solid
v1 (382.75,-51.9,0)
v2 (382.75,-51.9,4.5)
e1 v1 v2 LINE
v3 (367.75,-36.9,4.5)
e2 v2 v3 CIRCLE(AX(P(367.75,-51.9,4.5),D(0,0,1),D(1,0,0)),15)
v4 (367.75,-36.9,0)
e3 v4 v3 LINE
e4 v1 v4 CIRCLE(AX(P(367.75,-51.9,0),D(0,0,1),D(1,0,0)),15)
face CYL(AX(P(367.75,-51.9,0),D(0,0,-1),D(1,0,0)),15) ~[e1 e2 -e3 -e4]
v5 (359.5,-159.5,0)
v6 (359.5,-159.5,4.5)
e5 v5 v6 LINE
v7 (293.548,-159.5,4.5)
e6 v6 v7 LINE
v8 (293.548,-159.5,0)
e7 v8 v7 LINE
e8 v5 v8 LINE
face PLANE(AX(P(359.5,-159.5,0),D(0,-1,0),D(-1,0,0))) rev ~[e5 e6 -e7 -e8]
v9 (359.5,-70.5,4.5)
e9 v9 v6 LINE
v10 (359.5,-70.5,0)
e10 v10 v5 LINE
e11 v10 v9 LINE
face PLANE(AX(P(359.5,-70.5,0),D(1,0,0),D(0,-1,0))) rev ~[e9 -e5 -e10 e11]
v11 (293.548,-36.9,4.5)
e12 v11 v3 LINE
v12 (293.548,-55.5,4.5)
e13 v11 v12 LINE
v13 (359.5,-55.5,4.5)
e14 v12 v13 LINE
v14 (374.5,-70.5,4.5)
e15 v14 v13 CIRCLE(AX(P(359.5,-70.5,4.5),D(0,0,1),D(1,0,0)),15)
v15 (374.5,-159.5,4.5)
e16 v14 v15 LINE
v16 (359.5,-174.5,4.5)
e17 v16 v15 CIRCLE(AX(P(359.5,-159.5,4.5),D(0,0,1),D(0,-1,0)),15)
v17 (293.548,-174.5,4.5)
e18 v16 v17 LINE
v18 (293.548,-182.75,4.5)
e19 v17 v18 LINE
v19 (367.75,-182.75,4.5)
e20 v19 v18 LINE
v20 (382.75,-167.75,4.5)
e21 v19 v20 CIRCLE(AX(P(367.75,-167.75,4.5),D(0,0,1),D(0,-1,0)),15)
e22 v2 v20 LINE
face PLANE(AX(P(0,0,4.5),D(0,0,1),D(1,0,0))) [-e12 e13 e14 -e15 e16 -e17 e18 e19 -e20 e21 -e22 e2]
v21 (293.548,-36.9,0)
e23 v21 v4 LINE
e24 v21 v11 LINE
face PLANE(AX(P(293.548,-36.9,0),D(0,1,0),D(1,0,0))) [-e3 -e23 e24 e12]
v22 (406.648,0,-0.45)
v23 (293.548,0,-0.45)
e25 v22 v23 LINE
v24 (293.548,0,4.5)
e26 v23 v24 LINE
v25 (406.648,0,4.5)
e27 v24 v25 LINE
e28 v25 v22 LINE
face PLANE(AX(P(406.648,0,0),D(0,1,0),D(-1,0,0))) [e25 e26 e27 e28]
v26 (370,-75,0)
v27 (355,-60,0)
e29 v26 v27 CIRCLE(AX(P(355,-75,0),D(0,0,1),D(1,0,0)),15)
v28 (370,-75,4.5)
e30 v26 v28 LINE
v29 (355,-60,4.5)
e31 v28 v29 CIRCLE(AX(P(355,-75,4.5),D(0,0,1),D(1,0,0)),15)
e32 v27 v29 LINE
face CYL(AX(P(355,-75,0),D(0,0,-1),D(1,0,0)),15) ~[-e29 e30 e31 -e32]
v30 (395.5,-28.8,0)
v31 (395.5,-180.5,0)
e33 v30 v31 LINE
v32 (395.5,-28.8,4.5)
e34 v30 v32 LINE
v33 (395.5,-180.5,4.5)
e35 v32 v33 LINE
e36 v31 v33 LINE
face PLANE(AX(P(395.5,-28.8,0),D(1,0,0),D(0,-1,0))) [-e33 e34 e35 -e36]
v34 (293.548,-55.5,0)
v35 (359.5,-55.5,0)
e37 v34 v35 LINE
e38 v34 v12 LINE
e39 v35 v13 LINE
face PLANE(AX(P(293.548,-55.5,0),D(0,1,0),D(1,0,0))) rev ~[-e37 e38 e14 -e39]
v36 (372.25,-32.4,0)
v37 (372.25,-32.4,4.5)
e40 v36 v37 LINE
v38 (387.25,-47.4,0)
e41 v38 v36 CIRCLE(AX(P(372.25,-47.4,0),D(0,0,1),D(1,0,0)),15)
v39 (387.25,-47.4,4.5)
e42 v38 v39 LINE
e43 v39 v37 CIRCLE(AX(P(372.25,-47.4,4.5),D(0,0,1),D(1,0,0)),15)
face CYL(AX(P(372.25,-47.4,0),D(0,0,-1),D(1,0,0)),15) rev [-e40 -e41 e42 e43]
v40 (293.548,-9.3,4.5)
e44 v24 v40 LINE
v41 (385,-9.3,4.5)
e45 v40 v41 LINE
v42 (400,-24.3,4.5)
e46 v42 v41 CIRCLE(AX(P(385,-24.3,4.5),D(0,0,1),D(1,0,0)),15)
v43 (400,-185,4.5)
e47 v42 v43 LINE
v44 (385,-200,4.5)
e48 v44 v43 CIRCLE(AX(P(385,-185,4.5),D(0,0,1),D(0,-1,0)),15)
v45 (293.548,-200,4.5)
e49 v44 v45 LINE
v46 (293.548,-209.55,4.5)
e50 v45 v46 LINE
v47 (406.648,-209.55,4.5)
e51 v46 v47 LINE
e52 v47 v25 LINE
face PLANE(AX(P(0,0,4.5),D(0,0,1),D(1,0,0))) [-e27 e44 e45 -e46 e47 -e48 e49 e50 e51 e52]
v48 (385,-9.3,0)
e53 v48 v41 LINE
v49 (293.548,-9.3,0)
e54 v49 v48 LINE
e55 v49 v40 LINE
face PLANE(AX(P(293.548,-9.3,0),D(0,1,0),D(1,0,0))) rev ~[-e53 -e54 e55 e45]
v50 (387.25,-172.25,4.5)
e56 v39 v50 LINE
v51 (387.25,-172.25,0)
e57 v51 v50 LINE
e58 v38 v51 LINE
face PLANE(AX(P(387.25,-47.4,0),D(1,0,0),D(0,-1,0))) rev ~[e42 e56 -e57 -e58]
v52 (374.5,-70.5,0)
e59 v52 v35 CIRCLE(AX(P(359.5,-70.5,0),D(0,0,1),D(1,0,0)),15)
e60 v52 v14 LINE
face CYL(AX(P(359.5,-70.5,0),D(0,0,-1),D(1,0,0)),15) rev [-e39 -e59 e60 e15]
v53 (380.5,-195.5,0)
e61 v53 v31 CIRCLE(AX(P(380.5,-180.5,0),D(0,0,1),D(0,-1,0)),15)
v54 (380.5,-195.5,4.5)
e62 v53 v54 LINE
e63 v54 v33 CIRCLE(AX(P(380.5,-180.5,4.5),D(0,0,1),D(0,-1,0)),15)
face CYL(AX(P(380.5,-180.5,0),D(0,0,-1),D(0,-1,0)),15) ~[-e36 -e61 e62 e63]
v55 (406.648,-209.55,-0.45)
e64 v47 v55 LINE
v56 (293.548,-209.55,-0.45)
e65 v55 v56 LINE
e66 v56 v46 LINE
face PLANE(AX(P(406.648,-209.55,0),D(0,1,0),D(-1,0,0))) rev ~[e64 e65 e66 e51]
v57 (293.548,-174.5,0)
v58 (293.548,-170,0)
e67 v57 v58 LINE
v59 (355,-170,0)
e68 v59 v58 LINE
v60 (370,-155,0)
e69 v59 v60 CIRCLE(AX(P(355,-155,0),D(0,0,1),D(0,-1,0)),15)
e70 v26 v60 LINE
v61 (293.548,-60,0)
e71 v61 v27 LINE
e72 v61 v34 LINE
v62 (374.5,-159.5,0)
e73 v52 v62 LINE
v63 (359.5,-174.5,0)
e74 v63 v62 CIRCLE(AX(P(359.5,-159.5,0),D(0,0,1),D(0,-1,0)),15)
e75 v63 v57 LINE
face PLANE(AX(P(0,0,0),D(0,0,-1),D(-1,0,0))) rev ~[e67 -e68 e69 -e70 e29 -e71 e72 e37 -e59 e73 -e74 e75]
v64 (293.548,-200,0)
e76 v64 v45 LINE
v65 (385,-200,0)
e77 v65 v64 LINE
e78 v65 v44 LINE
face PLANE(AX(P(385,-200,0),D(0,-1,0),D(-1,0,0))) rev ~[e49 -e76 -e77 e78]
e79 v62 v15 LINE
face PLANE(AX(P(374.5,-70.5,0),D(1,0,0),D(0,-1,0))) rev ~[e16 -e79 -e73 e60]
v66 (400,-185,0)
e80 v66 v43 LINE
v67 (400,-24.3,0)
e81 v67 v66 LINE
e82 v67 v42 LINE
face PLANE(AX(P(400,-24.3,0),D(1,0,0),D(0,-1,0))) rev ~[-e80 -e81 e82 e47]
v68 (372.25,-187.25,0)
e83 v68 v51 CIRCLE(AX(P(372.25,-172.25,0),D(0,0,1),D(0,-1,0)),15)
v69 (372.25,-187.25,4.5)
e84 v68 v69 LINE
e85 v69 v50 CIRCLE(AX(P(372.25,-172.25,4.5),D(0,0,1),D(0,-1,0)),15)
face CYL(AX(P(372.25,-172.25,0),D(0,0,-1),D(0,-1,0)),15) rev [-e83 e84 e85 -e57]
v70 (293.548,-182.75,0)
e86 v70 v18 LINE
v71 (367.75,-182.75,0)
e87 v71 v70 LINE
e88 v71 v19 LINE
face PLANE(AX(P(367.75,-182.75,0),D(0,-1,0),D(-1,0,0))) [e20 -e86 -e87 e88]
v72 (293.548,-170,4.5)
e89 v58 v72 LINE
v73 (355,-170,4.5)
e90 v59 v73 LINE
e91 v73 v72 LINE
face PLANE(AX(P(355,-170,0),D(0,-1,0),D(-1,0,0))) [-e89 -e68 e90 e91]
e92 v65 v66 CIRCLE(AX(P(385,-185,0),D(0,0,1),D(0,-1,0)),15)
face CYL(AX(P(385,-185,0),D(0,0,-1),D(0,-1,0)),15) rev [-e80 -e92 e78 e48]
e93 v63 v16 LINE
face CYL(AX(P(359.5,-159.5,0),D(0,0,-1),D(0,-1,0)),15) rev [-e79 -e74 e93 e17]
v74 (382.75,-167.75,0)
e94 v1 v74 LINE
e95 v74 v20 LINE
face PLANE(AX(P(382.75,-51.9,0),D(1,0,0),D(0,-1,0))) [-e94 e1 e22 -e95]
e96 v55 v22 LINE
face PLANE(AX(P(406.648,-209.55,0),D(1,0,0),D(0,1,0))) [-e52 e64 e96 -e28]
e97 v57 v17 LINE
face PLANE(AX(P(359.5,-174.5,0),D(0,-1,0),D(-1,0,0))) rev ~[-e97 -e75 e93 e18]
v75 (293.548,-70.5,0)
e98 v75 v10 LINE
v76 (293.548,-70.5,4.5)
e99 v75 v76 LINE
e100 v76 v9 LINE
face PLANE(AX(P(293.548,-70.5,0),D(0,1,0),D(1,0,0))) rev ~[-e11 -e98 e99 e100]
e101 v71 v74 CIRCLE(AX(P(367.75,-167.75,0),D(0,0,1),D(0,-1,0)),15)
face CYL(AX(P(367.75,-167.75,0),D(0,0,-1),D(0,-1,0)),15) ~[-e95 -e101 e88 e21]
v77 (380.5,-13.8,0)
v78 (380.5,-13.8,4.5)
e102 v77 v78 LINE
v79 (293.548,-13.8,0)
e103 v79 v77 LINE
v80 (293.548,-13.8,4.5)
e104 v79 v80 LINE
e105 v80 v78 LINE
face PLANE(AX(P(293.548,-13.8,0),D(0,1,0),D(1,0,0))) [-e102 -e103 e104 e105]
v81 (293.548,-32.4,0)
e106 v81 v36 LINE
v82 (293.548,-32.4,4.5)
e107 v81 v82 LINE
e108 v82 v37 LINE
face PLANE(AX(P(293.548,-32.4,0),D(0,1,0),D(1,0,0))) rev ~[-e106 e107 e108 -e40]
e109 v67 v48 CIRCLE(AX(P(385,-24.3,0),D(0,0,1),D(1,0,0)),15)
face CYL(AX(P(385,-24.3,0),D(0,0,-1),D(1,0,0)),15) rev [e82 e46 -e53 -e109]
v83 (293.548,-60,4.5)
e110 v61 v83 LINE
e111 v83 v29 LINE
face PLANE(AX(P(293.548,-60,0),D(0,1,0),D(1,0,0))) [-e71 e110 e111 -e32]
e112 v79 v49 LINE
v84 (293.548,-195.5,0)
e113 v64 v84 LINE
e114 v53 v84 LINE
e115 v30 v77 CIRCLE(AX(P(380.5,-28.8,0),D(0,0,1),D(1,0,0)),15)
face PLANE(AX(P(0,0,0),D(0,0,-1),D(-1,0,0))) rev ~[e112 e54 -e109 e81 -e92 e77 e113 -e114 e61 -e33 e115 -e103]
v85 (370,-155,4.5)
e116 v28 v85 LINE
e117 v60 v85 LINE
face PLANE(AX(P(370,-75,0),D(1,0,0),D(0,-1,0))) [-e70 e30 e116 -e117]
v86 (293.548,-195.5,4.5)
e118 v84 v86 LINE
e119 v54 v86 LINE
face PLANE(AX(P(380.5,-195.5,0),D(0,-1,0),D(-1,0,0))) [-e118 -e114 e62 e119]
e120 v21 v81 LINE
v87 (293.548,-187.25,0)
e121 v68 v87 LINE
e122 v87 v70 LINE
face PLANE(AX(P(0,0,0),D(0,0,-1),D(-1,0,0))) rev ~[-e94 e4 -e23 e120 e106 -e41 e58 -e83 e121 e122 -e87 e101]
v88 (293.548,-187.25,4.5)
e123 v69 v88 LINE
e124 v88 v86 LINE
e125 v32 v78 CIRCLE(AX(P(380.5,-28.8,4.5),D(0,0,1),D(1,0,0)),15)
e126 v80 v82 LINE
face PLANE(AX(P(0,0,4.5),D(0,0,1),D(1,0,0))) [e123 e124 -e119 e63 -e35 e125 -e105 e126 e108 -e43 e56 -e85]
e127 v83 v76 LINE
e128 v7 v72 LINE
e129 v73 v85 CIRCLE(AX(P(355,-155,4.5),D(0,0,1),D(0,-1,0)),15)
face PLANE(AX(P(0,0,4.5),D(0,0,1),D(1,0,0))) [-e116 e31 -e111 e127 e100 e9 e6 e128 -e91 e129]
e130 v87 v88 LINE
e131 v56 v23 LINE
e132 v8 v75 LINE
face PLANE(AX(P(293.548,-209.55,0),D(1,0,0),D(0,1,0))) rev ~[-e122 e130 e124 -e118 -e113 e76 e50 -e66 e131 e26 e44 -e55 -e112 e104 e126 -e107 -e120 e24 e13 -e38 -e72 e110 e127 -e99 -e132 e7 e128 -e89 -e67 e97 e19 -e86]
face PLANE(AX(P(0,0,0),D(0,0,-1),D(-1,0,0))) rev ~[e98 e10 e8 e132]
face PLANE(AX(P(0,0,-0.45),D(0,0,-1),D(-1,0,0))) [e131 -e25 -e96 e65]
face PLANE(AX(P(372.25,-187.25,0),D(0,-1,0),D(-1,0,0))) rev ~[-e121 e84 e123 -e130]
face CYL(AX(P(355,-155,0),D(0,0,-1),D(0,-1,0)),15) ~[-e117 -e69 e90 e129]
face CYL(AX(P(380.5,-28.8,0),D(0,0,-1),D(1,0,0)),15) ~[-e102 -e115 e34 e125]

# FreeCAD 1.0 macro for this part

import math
import FreeCAD as App
import Part
import Sketcher
from FreeCAD import Vector
Q = App.Units.Quantity


def add_polygon(sketch, points):
    """Adds a closed chain of lines whose ends are joined by coincident constraints."""
    first, n = sketch.GeometryCount, len(points)
    for a, b in zip(points, points[1:] + points[:1]):
        sketch.addGeometry(Part.LineSegment(App.Vector(*a, 0), App.Vector(*b, 0)), False)
    for i in range(n):
        sketch.addConstraint(Sketcher.Constraint("Coincident", first + i, 2, first + (i + 1) % n, 1))

doc = App.newDocument("Part")
body = doc.addObject("PartDesign::Body", "Body")
body.AllowCompound = True

sketch1 = doc.addObject("Sketcher::SketchObject", "Sketch")
body.addObject(sketch1)
sketch1.AttachmentSupport = (doc.XY_Plane, [""])
sketch1.MapMode = "FlatFace"
sketch1.addGeometry([
    Part.LineSegment(Vector(294, 0, 0), Vector(294, -9, 0)),
    Part.LineSegment(Vector(294, -9, 0), Vector(385, -9, 0)),
    Part.ArcOfCircle(Part.Circle(Vector(385, -24, 0), Vector(0, 0, 1), 15), math.radians(0), math.radians(90)),
    Part.LineSegment(Vector(400, -24, 0), Vector(400, -185, 0)),
    Part.ArcOfCircle(Part.Circle(Vector(385, -185, 0), Vector(0, 0, 1), 15), math.radians(-90), math.radians(0)),
    Part.LineSegment(Vector(385, -200, 0), Vector(294, -200, 0)),
    Part.LineSegment(Vector(294, -200, 0), Vector(294, -210, 0)),
    Part.LineSegment(Vector(294, -210, 0), Vector(407, -210, 0)),
    Part.LineSegment(Vector(407, -210, 0), Vector(407, 0, 0)),
    Part.LineSegment(Vector(407, 0, 0), Vector(294, 0, 0)),
    Part.LineSegment(Vector(380, -14, 0), Vector(294, -14, 0)),
    Part.LineSegment(Vector(294, -14, 0), Vector(294, -32, 0)),
    Part.LineSegment(Vector(294, -32, 0), Vector(372, -32, 0)),
    Part.ArcOfCircle(Part.Circle(Vector(372, -47, 0), Vector(0, 0, 1), 15), math.radians(0), math.radians(90)),
    Part.LineSegment(Vector(387, -47, 0), Vector(387, -172, 0)),
    Part.ArcOfCircle(Part.Circle(Vector(372, -172, 0), Vector(0, 0, 1), 15), math.radians(-90), math.radians(0)),
    Part.LineSegment(Vector(372, -187, 0), Vector(294, -187, 0)),
    Part.LineSegment(Vector(294, -187, 0), Vector(294, -196, 0)),
    Part.LineSegment(Vector(294, -196, 0), Vector(380, -196, 0)),
    Part.ArcOfCircle(Part.Circle(Vector(380, -180, 0), Vector(0, 0, 1), 15), math.radians(-90), math.radians(0)),
    Part.LineSegment(Vector(396, -180, 0), Vector(396, -29, 0)),
    Part.ArcOfCircle(Part.Circle(Vector(380, -29, 0), Vector(0, 0, 1), 15), math.radians(0), math.radians(90)),
    Part.LineSegment(Vector(368, -37, 0), Vector(294, -37, 0)),
    Part.LineSegment(Vector(294, -37, 0), Vector(294, -56, 0)),
    Part.LineSegment(Vector(294, -56, 0), Vector(360, -56, 0)),
    Part.ArcOfCircle(Part.Circle(Vector(360, -70, 0), Vector(0, 0, 1), 15), math.radians(0), math.radians(90)),
    Part.LineSegment(Vector(374, -70, 0), Vector(374, -160, 0)),
    Part.ArcOfCircle(Part.Circle(Vector(360, -160, 0), Vector(0, 0, 1), 15), math.radians(-90), math.radians(0)),
    Part.LineSegment(Vector(360, -174, 0), Vector(294, -174, 0)),
    Part.LineSegment(Vector(294, -174, 0), Vector(294, -183, 0)),
    Part.LineSegment(Vector(294, -183, 0), Vector(368, -183, 0)),
    Part.ArcOfCircle(Part.Circle(Vector(368, -168, 0), Vector(0, 0, 1), 15), math.radians(-90), math.radians(0)),
    Part.LineSegment(Vector(383, -168, 0), Vector(383, -52, 0)),
    Part.ArcOfCircle(Part.Circle(Vector(368, -52, 0), Vector(0, 0, 1), 15), math.radians(0), math.radians(90)),
    Part.LineSegment(Vector(355, -60, 0), Vector(294, -60, 0)),
    Part.LineSegment(Vector(294, -60, 0), Vector(294, -70, 0)),
    Part.LineSegment(Vector(294, -70, 0), Vector(360, -70, 0)),
    Part.LineSegment(Vector(360, -70, 0), Vector(360, -160, 0)),
    Part.LineSegment(Vector(360, -160, 0), Vector(294, -160, 0)),
    Part.LineSegment(Vector(294, -160, 0), Vector(294, -170, 0)),
    Part.LineSegment(Vector(294, -170, 0), Vector(355, -170, 0)),
    Part.ArcOfCircle(Part.Circle(Vector(355, -155, 0), Vector(0, 0, 1), 15), math.radians(-90), math.radians(0)),
    Part.LineSegment(Vector(370, -155, 0), Vector(370, -75, 0)),
    Part.ArcOfCircle(Part.Circle(Vector(355, -75, 0), Vector(0, 0, 1), 15), math.radians(0), math.radians(90)),
], False)
sketch1.addConstraint([
    Sketcher.Constraint("Coincident", 0, 2, 1, 1),
    Sketcher.Constraint("Tangent", 1, 2, 2, 2),
    Sketcher.Constraint("Tangent", 2, 1, 3, 1),
    Sketcher.Constraint("Tangent", 3, 2, 4, 2),
    Sketcher.Constraint("Tangent", 4, 1, 5, 1),
    Sketcher.Constraint("Coincident", 5, 2, 6, 1),
    Sketcher.Constraint("Coincident", 6, 2, 7, 1),
    Sketcher.Constraint("Coincident", 7, 2, 8, 1),
    Sketcher.Constraint("Coincident", 8, 2, 9, 1),
    Sketcher.Constraint("Coincident", 9, 2, 0, 1),
    Sketcher.Constraint("Coincident", 10, 2, 11, 1),
    Sketcher.Constraint("Coincident", 11, 2, 12, 1),
    Sketcher.Constraint("Tangent", 12, 2, 13, 2),
    Sketcher.Constraint("Tangent", 13, 1, 14, 1),
    Sketcher.Constraint("Tangent", 14, 2, 15, 2),
    Sketcher.Constraint("Tangent", 15, 1, 16, 1),
    Sketcher.Constraint("Coincident", 16, 2, 17, 1),
    Sketcher.Constraint("Coincident", 17, 2, 18, 1),
    Sketcher.Constraint("Tangent", 18, 2, 19, 1),
    Sketcher.Constraint("Tangent", 19, 2, 20, 1),
    Sketcher.Constraint("Tangent", 20, 2, 21, 1),
    Sketcher.Constraint("Tangent", 21, 2, 10, 1),
    Sketcher.Constraint("Coincident", 22, 2, 23, 1),
    Sketcher.Constraint("Coincident", 23, 2, 24, 1),
    Sketcher.Constraint("Tangent", 24, 2, 25, 2),
    Sketcher.Constraint("Tangent", 25, 1, 26, 1),
    Sketcher.Constraint("Tangent", 26, 2, 27, 2),
    Sketcher.Constraint("Tangent", 27, 1, 28, 1),
    Sketcher.Constraint("Coincident", 28, 2, 29, 1),
    Sketcher.Constraint("Coincident", 29, 2, 30, 1),
    Sketcher.Constraint("Tangent", 30, 2, 31, 1),
    Sketcher.Constraint("Tangent", 31, 2, 32, 1),
    Sketcher.Constraint("Tangent", 32, 2, 33, 1),
    Sketcher.Constraint("Tangent", 33, 2, 22, 1),
    Sketcher.Constraint("Coincident", 34, 2, 35, 1),
    Sketcher.Constraint("Coincident", 35, 2, 36, 1),
    Sketcher.Constraint("Coincident", 36, 2, 37, 1),
    Sketcher.Constraint("Coincident", 37, 2, 38, 1),
    Sketcher.Constraint("Coincident", 38, 2, 39, 1),
    Sketcher.Constraint("Coincident", 39, 2, 40, 1),
    Sketcher.Constraint("Tangent", 40, 2, 41, 1),
    Sketcher.Constraint("Tangent", 41, 2, 42, 1),
    Sketcher.Constraint("Tangent", 42, 2, 43, 1),
    Sketcher.Constraint("Tangent", 43, 2, 34, 1),
    Sketcher.Constraint("Vertical", 0),
    Sketcher.Constraint("Horizontal", 1),
    Sketcher.Constraint("Vertical", 3),
    Sketcher.Constraint("Horizontal", 5),
    Sketcher.Constraint("Vertical", 6),
    Sketcher.Constraint("Horizontal", 7),
    Sketcher.Constraint("Vertical", 8),
    Sketcher.Constraint("Horizontal", 9),
    Sketcher.Constraint("Horizontal", 10),
    Sketcher.Constraint("Vertical", 11),
    Sketcher.Constraint("Horizontal", 12),
    Sketcher.Constraint("Vertical", 14),
    Sketcher.Constraint("Horizontal", 16),
    Sketcher.Constraint("Vertical", 17),
    Sketcher.Constraint("Horizontal", 18),
    Sketcher.Constraint("Vertical", 20),
    Sketcher.Constraint("Horizontal", 22),
    Sketcher.Constraint("Vertical", 23),
    Sketcher.Constraint("Horizontal", 24),
    Sketcher.Constraint("Vertical", 26),
    Sketcher.Constraint("Horizontal", 28),
    Sketcher.Constraint("Vertical", 29),
    Sketcher.Constraint("Horizontal", 30),
    Sketcher.Constraint("Vertical", 32),
    Sketcher.Constraint("Horizontal", 34),
    Sketcher.Constraint("Vertical", 35),
    Sketcher.Constraint("Horizontal", 36),
    Sketcher.Constraint("Vertical", 37),
    Sketcher.Constraint("Horizontal", 38),
    Sketcher.Constraint("Vertical", 39),
    Sketcher.Constraint("Horizontal", 40),
    Sketcher.Constraint("Vertical", 42),
    Sketcher.Constraint("Coincident", 36, 2, 25, 3),
    Sketcher.Constraint("Coincident", 37, 2, 27, 3),
    Sketcher.Constraint("Equal", 2, 4),
    Sketcher.Constraint("Equal", 4, 13),
    Sketcher.Constraint("Equal", 13, 15),
    Sketcher.Constraint("Equal", 15, 19),
    Sketcher.Constraint("Equal", 19, 21),
    Sketcher.Constraint("Equal", 21, 25),
    Sketcher.Constraint("Equal", 27, 31),
    Sketcher.Constraint("Equal", 31, 33),
    Sketcher.Constraint("Equal", 33, 41),
    Sketcher.Constraint("Equal", 41, 43),
    Sketcher.Constraint("PointOnObject", 8, 2, -1),
    Sketcher.Constraint("Vertical", 0, 2, 5, 2),
    Sketcher.Constraint("Vertical", 9, 2, 10, 2),
    Sketcher.Constraint("Vertical", 11, 2, 16, 2),
    Sketcher.Constraint("Vertical", 17, 2, 22, 2),
    Sketcher.Constraint("Vertical", 23, 2, 28, 2),
    Sketcher.Constraint("Vertical", 29, 2, 34, 2),
    Sketcher.Constraint("Vertical", 35, 2, 38, 2),
    Sketcher.Constraint("Equal", 11, 23),
    Sketcher.Constraint("Equal", 17, 29),
    Sketcher.Constraint("Equal", 35, 39),
    Sketcher.Constraint("Radius", 2, Q("15 mm")),
    Sketcher.Constraint("DistanceX", 7, 1, 7, 2, Q("113.1 mm")),
    Sketcher.Constraint("DistanceY", 0, 2, 0, 1, Q("9.3 mm")),
    Sketcher.Constraint("DistanceY", 11, 2, 11, 1, Q("18.6 mm")),
    Sketcher.Constraint("DistanceX", -1, 1, 2, 1, Q("400 mm")),
    Sketcher.Constraint("DistanceY", 4, 1, -1, 1, Q("200 mm")),
    Sketcher.Constraint("DistanceY", 8, 1, 8, 2, Q("209.55 mm")),
    Sketcher.Constraint("DistanceY", 17, 2, 17, 1, Q("8.25 mm")),
    Sketcher.Constraint("DistanceX", 19, 3, 4, 3, Q("4.5 mm")),
    Sketcher.Constraint("DistanceY", 4, 3, 19, 3, Q("4.5 mm")),
    Sketcher.Constraint("DistanceY", 21, 3, 2, 3, Q("4.5 mm")),
    Sketcher.Constraint("DistanceX", 31, 3, 15, 3, Q("4.5 mm")),
    Sketcher.Constraint("DistanceY", 15, 3, 31, 3, Q("4.5 mm")),
    Sketcher.Constraint("DistanceY", 33, 3, 13, 3, Q("4.5 mm")),
    Sketcher.Constraint("DistanceX", 41, 3, 27, 3, Q("4.5 mm")),
    Sketcher.Constraint("DistanceY", 27, 3, 41, 3, Q("4.5 mm")),
    Sketcher.Constraint("DistanceX", 15, 3, 19, 3, Q("8.25 mm")),
    Sketcher.Constraint("DistanceX", 27, 3, 31, 3, Q("8.25 mm")),
    Sketcher.Constraint("DistanceX", 1, 1, 1, 2, Q("91.452 mm")),
])
pad1 = doc.addObject("PartDesign::Pad", "Pad")
body.addObject(pad1)
pad1.Profile = sketch1
pad1.Length = 4.5

sketch2 = doc.addObject("Sketcher::SketchObject", "Sketch001")
body.addObject(sketch2)
sketch2.AttachmentSupport = (doc.XY_Plane, [""])
sketch2.MapMode = "FlatFace"
add_polygon(sketch2, [(294, 0), (407, 0), (407, -210), (294, -210)])
sketch2.addConstraint([
    Sketcher.Constraint("Horizontal", 0),
    Sketcher.Constraint("Vertical", 1),
    Sketcher.Constraint("Horizontal", 2),
    Sketcher.Constraint("Vertical", 3),
    Sketcher.Constraint("PointOnObject", 0, 2, -1),
    Sketcher.Constraint("DistanceX", 0, 1, 0, 2, Q("113.1 mm")),
    Sketcher.Constraint("DistanceY", 1, 2, 1, 1, Q("209.55 mm")),
    Sketcher.Constraint("DistanceX", -1, 1, 0, 2, Q("406.648 mm")),
])
pad2 = doc.addObject("PartDesign::Pad", "Pad001")
body.addObject(pad2)
pad2.Profile = sketch2
pad2.Length = 0.45
pad2.Reversed = True

doc.recompute()
